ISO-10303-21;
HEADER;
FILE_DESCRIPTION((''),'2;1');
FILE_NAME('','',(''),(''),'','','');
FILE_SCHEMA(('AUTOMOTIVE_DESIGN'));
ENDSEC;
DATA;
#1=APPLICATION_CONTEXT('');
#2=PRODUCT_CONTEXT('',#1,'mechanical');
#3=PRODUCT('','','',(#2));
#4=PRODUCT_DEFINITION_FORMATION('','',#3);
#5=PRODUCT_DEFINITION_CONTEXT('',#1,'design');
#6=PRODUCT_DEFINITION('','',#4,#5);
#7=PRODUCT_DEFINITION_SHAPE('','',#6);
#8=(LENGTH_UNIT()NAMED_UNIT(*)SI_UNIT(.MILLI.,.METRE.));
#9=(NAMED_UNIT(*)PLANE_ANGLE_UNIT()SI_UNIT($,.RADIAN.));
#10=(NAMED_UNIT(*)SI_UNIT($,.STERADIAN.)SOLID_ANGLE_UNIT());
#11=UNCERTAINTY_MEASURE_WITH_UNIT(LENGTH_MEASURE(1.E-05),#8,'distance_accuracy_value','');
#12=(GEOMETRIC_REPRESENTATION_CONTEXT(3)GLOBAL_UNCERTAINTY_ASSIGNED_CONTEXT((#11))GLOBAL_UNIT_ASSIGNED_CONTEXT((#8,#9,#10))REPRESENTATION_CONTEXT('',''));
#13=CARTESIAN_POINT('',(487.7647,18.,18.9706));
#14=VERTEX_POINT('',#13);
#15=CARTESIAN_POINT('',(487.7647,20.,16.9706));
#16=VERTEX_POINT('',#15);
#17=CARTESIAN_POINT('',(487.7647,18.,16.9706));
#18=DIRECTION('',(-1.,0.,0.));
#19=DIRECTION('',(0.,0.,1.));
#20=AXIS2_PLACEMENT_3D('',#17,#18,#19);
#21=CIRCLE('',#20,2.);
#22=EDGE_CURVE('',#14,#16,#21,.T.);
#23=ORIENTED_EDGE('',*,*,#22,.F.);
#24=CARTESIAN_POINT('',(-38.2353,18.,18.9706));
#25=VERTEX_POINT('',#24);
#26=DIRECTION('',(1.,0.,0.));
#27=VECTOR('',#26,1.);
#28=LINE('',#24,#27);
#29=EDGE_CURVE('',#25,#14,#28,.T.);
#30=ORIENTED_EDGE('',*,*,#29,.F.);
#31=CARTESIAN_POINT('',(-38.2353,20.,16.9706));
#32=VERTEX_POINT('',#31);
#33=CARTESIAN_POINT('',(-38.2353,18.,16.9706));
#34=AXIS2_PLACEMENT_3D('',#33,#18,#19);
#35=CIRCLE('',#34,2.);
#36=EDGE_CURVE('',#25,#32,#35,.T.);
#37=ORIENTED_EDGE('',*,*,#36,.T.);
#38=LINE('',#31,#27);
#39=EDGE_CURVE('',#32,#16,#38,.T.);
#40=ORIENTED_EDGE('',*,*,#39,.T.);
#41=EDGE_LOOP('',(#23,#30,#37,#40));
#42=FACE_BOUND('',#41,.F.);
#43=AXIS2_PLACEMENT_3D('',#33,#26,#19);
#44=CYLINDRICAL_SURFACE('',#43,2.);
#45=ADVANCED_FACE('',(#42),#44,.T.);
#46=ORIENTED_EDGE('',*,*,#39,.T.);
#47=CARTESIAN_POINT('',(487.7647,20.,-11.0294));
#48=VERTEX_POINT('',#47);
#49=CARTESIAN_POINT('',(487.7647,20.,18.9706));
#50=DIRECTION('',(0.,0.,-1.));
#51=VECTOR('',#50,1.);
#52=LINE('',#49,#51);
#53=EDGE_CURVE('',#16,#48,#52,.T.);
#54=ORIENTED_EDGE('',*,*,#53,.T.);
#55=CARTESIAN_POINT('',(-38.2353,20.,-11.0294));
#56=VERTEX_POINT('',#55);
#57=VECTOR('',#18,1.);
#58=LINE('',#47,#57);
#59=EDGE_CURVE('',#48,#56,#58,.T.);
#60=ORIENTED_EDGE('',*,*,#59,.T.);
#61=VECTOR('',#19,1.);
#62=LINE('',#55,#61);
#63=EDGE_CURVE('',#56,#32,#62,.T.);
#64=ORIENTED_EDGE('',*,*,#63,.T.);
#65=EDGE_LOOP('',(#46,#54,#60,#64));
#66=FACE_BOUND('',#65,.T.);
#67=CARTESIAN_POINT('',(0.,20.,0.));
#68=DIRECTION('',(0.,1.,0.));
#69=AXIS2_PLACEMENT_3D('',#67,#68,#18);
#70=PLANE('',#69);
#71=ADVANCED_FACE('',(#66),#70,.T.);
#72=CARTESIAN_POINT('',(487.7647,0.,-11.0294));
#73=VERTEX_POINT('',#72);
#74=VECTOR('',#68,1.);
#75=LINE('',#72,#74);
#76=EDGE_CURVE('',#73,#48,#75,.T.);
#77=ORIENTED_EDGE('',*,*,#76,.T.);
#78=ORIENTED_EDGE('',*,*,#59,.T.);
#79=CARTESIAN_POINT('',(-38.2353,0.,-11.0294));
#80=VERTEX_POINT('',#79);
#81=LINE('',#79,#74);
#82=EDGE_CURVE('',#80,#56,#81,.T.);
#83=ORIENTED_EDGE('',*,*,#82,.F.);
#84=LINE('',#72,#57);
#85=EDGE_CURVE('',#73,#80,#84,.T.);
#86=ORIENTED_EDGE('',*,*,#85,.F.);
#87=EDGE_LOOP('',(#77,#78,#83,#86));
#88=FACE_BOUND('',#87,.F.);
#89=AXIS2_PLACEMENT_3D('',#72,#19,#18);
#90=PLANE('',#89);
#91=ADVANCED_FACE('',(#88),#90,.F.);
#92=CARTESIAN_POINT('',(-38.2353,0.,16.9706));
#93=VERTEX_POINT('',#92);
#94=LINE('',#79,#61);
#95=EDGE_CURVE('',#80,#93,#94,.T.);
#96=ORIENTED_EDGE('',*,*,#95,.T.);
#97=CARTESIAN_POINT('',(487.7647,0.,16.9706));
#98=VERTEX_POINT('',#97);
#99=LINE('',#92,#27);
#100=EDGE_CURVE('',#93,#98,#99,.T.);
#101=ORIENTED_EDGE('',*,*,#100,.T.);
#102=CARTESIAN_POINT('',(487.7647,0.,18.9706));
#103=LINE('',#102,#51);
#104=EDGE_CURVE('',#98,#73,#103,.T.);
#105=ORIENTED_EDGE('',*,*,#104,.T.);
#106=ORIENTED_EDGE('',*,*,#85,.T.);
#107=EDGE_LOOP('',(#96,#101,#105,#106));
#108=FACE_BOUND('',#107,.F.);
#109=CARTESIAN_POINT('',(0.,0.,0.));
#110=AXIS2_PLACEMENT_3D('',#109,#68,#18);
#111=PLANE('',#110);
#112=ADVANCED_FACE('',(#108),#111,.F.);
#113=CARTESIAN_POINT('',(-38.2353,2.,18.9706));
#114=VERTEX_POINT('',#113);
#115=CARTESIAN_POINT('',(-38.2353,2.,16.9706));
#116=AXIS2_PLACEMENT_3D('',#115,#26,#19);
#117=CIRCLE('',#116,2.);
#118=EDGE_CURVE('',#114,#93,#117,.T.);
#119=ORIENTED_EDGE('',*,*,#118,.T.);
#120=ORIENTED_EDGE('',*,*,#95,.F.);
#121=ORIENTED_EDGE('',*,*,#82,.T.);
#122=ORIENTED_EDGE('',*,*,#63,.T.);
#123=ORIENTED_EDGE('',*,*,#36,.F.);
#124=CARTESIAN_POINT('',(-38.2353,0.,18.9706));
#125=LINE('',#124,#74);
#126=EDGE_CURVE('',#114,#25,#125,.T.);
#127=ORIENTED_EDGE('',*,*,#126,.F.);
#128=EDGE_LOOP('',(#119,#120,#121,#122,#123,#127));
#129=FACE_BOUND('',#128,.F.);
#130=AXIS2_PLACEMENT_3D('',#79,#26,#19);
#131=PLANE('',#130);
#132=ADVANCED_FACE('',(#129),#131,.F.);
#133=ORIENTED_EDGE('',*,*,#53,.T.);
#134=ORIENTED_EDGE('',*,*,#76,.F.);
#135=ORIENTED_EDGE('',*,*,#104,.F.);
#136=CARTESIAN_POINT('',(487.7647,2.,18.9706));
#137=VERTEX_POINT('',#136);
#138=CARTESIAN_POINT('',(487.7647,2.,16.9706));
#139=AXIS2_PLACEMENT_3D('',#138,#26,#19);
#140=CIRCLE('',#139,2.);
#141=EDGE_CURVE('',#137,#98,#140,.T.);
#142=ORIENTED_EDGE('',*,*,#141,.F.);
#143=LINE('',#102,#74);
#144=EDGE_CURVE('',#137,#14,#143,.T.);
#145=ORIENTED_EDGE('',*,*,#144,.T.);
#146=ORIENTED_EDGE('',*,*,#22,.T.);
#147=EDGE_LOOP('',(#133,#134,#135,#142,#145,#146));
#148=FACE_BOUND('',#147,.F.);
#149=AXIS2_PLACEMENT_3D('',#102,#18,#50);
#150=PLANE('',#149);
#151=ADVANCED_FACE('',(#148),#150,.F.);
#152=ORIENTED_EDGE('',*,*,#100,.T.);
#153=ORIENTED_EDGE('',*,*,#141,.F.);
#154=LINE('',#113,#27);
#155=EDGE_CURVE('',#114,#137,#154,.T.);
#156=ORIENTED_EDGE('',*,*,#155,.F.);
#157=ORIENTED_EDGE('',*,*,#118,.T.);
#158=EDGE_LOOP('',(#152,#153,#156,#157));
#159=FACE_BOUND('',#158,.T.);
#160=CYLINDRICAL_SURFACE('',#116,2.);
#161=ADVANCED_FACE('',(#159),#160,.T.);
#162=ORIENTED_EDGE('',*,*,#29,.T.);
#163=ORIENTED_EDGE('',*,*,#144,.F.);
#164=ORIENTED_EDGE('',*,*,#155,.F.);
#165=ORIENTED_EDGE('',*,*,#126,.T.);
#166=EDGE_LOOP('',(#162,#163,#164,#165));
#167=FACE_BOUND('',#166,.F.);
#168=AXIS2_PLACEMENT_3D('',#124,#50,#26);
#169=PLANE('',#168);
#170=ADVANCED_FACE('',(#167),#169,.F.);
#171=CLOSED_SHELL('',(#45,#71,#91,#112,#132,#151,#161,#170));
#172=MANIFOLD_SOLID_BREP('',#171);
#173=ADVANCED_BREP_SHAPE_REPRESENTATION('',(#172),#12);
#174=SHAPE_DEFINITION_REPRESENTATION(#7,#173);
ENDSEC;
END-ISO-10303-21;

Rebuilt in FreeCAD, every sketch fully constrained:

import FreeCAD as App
import Part
import Sketcher
Q = App.Units.Quantity


def edges_at(feature, points):
    """Names of the edges that pass closest to the given points."""
    edges = feature.Shape.Edges
    near = lambda p: min(range(len(edges)), key=lambda i: edges[i].distToShape(Part.Vertex(*p))[0])
    return sorted({f"Edge{near(p) + 1}" for p in points})

doc = App.newDocument("Part")
body = doc.addObject("PartDesign::Body", "Body")

sketch1 = body.newObject("Sketcher::SketchObject", "Sketch")
sketch1.AttachmentSupport = (doc.getObject("XZ_Plane"), [""])
sketch1.MapMode = "FlatFace"
sketch1.addGeometry([
    Part.LineSegment(App.Vector(-38, -11, 0), App.Vector(-38, 19, 0)),
    Part.LineSegment(App.Vector(-38, 19, 0), App.Vector(488, 19, 0)),
    Part.LineSegment(App.Vector(488, 19, 0), App.Vector(488, -11, 0)),
    Part.LineSegment(App.Vector(488, -11, 0), App.Vector(-38, -11, 0)),
], False)
sketch1.addConstraint([
    Sketcher.Constraint("Coincident", 0, 2, 1, 1),
    Sketcher.Constraint("Coincident", 1, 2, 2, 1),
    Sketcher.Constraint("Coincident", 2, 2, 3, 1),
    Sketcher.Constraint("Coincident", 3, 2, 0, 1),
    Sketcher.Constraint("Vertical", 0),
    Sketcher.Constraint("Horizontal", 1),
    Sketcher.Constraint("Vertical", 2),
    Sketcher.Constraint("Horizontal", 3),
    Sketcher.Constraint("DistanceX", 1, 1, 1, 2, Q("526 mm")),
    Sketcher.Constraint("DistanceY", 0, 1, 0, 2, Q("30 mm")),
    Sketcher.Constraint("DistanceX", 0, 2, -1, 1, Q("38.2353 mm")),
    Sketcher.Constraint("DistanceY", -1, 1, 0, 2, Q("18.9706 mm")),
])
pad1 = body.newObject("PartDesign::Pad", "Pad")
pad1.Profile = sketch1
pad1.Length = 20
pad1.Reversed = True
doc.recompute()

fillet = body.newObject("PartDesign::Fillet", "Fillet")
fillet.Base = (pad1, edges_at(pad1, [(224.765, 0, 18.971), (224.765, 20, 18.971)]))
fillet.Radius = 2

doc.recompute()
